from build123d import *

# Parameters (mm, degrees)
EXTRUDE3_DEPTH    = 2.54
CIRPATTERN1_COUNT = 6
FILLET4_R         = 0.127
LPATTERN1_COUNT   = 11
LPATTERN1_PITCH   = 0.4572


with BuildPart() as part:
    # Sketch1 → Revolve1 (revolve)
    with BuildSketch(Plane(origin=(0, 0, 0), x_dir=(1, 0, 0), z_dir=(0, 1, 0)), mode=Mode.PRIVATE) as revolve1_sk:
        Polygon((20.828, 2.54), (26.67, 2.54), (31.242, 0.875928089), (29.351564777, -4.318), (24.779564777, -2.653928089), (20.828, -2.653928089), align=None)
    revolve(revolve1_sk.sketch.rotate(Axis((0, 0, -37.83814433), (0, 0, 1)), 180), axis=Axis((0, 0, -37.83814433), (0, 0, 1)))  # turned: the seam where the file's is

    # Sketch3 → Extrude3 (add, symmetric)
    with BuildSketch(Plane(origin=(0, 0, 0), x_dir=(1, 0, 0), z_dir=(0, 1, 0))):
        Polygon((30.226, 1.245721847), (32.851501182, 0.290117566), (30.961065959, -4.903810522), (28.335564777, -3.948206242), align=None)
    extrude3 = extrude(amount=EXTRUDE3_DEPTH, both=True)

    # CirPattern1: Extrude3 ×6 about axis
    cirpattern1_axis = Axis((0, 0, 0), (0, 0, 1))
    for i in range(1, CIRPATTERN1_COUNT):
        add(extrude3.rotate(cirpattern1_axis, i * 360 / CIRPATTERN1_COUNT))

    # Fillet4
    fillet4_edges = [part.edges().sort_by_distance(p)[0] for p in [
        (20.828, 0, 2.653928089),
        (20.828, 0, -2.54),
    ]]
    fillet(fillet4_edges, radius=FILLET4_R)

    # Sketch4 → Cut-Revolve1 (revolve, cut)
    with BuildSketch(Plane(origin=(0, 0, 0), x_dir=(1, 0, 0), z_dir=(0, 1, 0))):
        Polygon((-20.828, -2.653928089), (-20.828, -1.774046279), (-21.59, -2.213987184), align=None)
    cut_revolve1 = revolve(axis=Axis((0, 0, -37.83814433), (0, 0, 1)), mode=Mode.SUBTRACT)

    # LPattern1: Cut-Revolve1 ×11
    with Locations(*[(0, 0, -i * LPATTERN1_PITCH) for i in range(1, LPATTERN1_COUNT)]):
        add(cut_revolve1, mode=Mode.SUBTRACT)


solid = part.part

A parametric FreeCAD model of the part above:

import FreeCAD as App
import Part
import Sketcher
Q = App.Units.Quantity


def edges_at(feature, points):
    """Names of the edges that pass closest to the given points."""
    edges = feature.Shape.Edges
    near = lambda p: min(range(len(edges)), key=lambda i: edges[i].distToShape(Part.Vertex(*p))[0])
    return sorted({f"Edge{near(p) + 1}" for p in points})


def add_polygon(sketch, points):
    """Adds a closed chain of lines whose ends are joined by coincident constraints."""
    first, n = sketch.GeometryCount, len(points)
    for a, b in zip(points, points[1:] + points[:1]):
        sketch.addGeometry(Part.LineSegment(App.Vector(*a, 0), App.Vector(*b, 0)), False)
    for i in range(n):
        sketch.addConstraint(Sketcher.Constraint("Coincident", first + i, 2, first + (i + 1) % n, 1))

doc = App.newDocument("Part")
params = doc.addObject("Spreadsheet::Sheet", "Params")
for row, (alias, value) in enumerate([
    ("sketch1_width", "0.23 in"),
    ("revolution_angle", "360 deg"),
    ("sketch2_length", "0.11 in"),
    ("pad1_length", "0.2 in"),
    ("fillet_radius", "0.005 in"),
    ("groove_angle", "360 deg"),
    ("linearpattern_pitch", "0.018 in"),
], start=1):
    params.set(f"A{row}", alias)
    params.set(f"B{row}", "=" + value)
    params.setAlias(f"B{row}", alias)

body = doc.addObject("PartDesign::Body", "Body")

sketch1 = body.newObject("Sketcher::SketchObject", "Sketch")
sketch1.AttachmentSupport = (doc.getObject("XZ_Plane"), [""])
sketch1.MapMode = "FlatFace"
add_polygon(sketch1, [(26.67, -2.54), (20.828, -2.54), (20.828, 2.653928), (24.779565, 2.653928), (29.351565, 4.318), (31.242, -0.875928)])
sketch1.addConstraint(Sketcher.Constraint("Horizontal", 0))
sketch1.addConstraint(Sketcher.Constraint("Vertical", 1))
sketch1.addConstraint(Sketcher.Constraint("Horizontal", 2))
sketch1.addConstraint(Sketcher.Constraint("Perpendicular", 3, 4))
sketch1.addConstraint(Sketcher.Constraint("Perpendicular", 4, 5))
sketch1.addConstraint(Sketcher.Constraint("Equal", 3, 5))
sketch1.addConstraint(Sketcher.Constraint("Angle", 3, Q("20 deg")))
sketch1.addConstraint(Sketcher.Constraint("DistanceX", 0, 2, 0, 1, Q("0.23 in")))
sketch1.addConstraint(Sketcher.Constraint("DistanceY", 0, 2, -1, 1, Q("0.1 in")))
sketch1.addConstraint(Sketcher.Constraint("DistanceX", -1, 1, 0, 2, Q("0.82 in")))
sketch1.addConstraint(Sketcher.Constraint("DistanceY", -1, 1, 3, 2, Q("0.17 in")))
sketch1.addConstraint(Sketcher.Constraint("DistanceX", -1, 1, 4, 2, Q("1.23 in")))
sketch1.setExpression("Constraints[13]", "Params.sketch1_width")
revolution = body.newObject("PartDesign::Revolution", "Revolution")
revolution.Profile = sketch1
revolution.ReferenceAxis = (sketch1, ["V_Axis"])
revolution.setExpression("Angle", "Params.revolution_angle")

sketch2 = body.newObject("Sketcher::SketchObject", "Sketch001")
sketch2.AttachmentSupport = (doc.getObject("XZ_Plane"), [""])
sketch2.MapMode = "FlatFace"
add_polygon(sketch2, [(32.851501, -0.290118), (30.226, -1.245722), (28.335565, 3.948206), (30.961066, 4.903811)])
sketch2.addConstraint(Sketcher.Constraint("Perpendicular", 0, 1))
sketch2.addConstraint(Sketcher.Constraint("Perpendicular", 1, 2))
sketch2.addConstraint(Sketcher.Constraint("Perpendicular", 2, 3))
sketch2.addConstraint(Sketcher.Constraint("Angle", 0, Q("-160 deg")))
sketch2.addConstraint(Sketcher.Constraint("Distance", 0, Q("0.11 in")))
sketch2.addConstraint(Sketcher.Constraint("DistanceX", -1, 1, 0, 2, Q("1.19 in")))
sketch2.addConstraint(Sketcher.Constraint("DistanceY", 0, 2, -1, 1, Q("1.245722 mm")))
sketch2.addConstraint(Sketcher.Constraint("DistanceY", -1, 1, 2, 2, Q("4.903811 mm")))
sketch2.setExpression("Constraints[8]", "Params.sketch2_length")
pad1 = body.newObject("PartDesign::Pad", "Pad")
pad1.Profile = sketch2
pad1.setExpression("Length", "Params.pad1_length")
pad1.Midplane = True
doc.recompute()

polarpattern = body.newObject("PartDesign::PolarPattern", "PolarPattern")
polarpattern.Originals = [pad1]
polarpattern.Axis = (doc.getObject("Z_Axis"), [""])
polarpattern.Angle = 360
polarpattern.Occurrences = 6
body.Tip = polarpattern
doc.recompute()

fillet = body.newObject("PartDesign::Fillet", "Fillet")
fillet.Base = (polarpattern, edges_at(polarpattern, [(20.828, 0, 2.654), (20.828, 0, -2.54)]))
fillet.setExpression("Radius", "Params.fillet_radius")

sketch3 = body.newObject("Sketcher::SketchObject", "Sketch002")
sketch3.AttachmentSupport = (doc.getObject("XZ_Plane"), [""])
sketch3.MapMode = "FlatFace"
add_polygon(sketch3, [(-20.828, 2.653928), (-20.828, 1.774046), (-21.59, 2.213987)])
sketch3.addConstraint(Sketcher.Constraint("Vertical", 0))
sketch3.addConstraint(Sketcher.Constraint("Equal", 1, 2))
sketch3.addConstraint(Sketcher.Constraint("Angle", 1, Q("150 deg")))
sketch3.addConstraint(Sketcher.Constraint("DistanceX", 0, 2, -1, 1, Q("0.82 in")))
sketch3.addConstraint(Sketcher.Constraint("DistanceX", 1, 2, -1, 1, Q("0.85 in")))
sketch3.addConstraint(Sketcher.Constraint("DistanceY", -1, 1, 2, 2, Q("2.653928 mm")))
groove = body.newObject("PartDesign::Groove", "Groove")
groove.Profile = sketch3
groove.ReferenceAxis = (sketch3, ["V_Axis"])
groove.setExpression("Angle", "Params.groove_angle")
doc.recompute()

linearpattern = body.newObject("PartDesign::LinearPattern", "LinearPattern")
linearpattern.Originals = [groove]
linearpattern.Direction = (doc.getObject("Z_Axis"), [""])
linearpattern.Mode = "offset"
linearpattern.setExpression("Offset", "Params.linearpattern_pitch")
linearpattern.Occurrences = 11
linearpattern.Reversed = True
body.Tip = linearpattern

doc.recompute()
